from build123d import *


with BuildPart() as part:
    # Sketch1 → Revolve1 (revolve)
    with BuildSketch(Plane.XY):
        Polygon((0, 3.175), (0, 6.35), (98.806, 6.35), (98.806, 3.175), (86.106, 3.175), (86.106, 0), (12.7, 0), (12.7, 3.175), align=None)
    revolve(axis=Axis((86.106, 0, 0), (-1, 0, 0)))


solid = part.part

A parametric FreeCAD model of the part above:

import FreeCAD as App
import Part
import Sketcher

V = App.Vector
Q = App.Units.Quantity

doc = App.newDocument("Part")
body = doc.addObject("PartDesign::Body", "Body")

# Sketch on XY plane
sketch1 = body.newObject("Sketcher::SketchObject", "Sketch")
sketch1.AttachmentSupport = (doc.getObject("XY_Plane"), [""])
sketch1.MapMode = "FlatFace"
sketch1.addGeometry(Part.LineSegment(V(0, 6.3, 0), V(0, 3.2, 0)), False)
sketch1.addGeometry(Part.LineSegment(V(0, 3.2, 0), V(12.7, 3.2, 0)), False)
sketch1.addGeometry(Part.LineSegment(V(12.7, 3.2, 0), V(12.7, 0, 0)), False)
sketch1.addGeometry(Part.LineSegment(V(12.7, 0, 0), V(86.1, 0, 0)), False)
sketch1.addGeometry(Part.LineSegment(V(86.1, 0, 0), V(86.1, 3.2, 0)), False)
sketch1.addGeometry(Part.LineSegment(V(86.1, 3.2, 0), V(98.8, 3.2, 0)), False)
sketch1.addGeometry(Part.LineSegment(V(98.8, 3.2, 0), V(98.8, 6.3, 0)), False)
sketch1.addGeometry(Part.LineSegment(V(98.8, 6.3, 0), V(0, 6.3, 0)), False)
sketch1.addConstraint(Sketcher.Constraint("Coincident", 0, 2, 1, 1))
sketch1.addConstraint(Sketcher.Constraint("Coincident", 1, 2, 2, 1))
sketch1.addConstraint(Sketcher.Constraint("Coincident", 2, 2, 3, 1))
sketch1.addConstraint(Sketcher.Constraint("Coincident", 3, 2, 4, 1))
sketch1.addConstraint(Sketcher.Constraint("Coincident", 4, 2, 5, 1))
sketch1.addConstraint(Sketcher.Constraint("Coincident", 5, 2, 6, 1))
sketch1.addConstraint(Sketcher.Constraint("Coincident", 6, 2, 7, 1))
sketch1.addConstraint(Sketcher.Constraint("Coincident", 7, 2, 0, 1))
sketch1.addConstraint(Sketcher.Constraint("Vertical", 0))
sketch1.addConstraint(Sketcher.Constraint("Horizontal", 1))
sketch1.addConstraint(Sketcher.Constraint("Vertical", 2))
sketch1.addConstraint(Sketcher.Constraint("Horizontal", 3))
sketch1.addConstraint(Sketcher.Constraint("Vertical", 4))
sketch1.addConstraint(Sketcher.Constraint("Horizontal", 5))
sketch1.addConstraint(Sketcher.Constraint("Vertical", 6))
sketch1.addConstraint(Sketcher.Constraint("Horizontal", 7))
sketch1.addConstraint(Sketcher.Constraint("PointOnObject", 0, 2, -2))
sketch1.addConstraint(Sketcher.Constraint("PointOnObject", 2, 2, -1))
sketch1.addConstraint(Sketcher.Constraint("Horizontal", 1, 2, 4, 2))
sketch1.addConstraint(Sketcher.Constraint("Equal", 1, 5))
sketch1.addConstraint(Sketcher.Constraint("Equal", 0, 2))
sketch1.addConstraint(Sketcher.Constraint("DistanceX", 1, 1, 1, 2, Q("0.5 in")))
sketch1.addConstraint(Sketcher.Constraint("DistanceX", 3, 1, 3, 2, Q("2.89 in")))
sketch1.addConstraint(Sketcher.Constraint("DistanceY", 0, 2, 0, 1, Q("0.125 in")))
revolution = body.newObject("PartDesign::Revolution", "Revolution")
revolution.Profile = sketch1
revolution.ReferenceAxis = (sketch1, ["H_Axis"])
revolution.Angle = 360

doc.recompute()
